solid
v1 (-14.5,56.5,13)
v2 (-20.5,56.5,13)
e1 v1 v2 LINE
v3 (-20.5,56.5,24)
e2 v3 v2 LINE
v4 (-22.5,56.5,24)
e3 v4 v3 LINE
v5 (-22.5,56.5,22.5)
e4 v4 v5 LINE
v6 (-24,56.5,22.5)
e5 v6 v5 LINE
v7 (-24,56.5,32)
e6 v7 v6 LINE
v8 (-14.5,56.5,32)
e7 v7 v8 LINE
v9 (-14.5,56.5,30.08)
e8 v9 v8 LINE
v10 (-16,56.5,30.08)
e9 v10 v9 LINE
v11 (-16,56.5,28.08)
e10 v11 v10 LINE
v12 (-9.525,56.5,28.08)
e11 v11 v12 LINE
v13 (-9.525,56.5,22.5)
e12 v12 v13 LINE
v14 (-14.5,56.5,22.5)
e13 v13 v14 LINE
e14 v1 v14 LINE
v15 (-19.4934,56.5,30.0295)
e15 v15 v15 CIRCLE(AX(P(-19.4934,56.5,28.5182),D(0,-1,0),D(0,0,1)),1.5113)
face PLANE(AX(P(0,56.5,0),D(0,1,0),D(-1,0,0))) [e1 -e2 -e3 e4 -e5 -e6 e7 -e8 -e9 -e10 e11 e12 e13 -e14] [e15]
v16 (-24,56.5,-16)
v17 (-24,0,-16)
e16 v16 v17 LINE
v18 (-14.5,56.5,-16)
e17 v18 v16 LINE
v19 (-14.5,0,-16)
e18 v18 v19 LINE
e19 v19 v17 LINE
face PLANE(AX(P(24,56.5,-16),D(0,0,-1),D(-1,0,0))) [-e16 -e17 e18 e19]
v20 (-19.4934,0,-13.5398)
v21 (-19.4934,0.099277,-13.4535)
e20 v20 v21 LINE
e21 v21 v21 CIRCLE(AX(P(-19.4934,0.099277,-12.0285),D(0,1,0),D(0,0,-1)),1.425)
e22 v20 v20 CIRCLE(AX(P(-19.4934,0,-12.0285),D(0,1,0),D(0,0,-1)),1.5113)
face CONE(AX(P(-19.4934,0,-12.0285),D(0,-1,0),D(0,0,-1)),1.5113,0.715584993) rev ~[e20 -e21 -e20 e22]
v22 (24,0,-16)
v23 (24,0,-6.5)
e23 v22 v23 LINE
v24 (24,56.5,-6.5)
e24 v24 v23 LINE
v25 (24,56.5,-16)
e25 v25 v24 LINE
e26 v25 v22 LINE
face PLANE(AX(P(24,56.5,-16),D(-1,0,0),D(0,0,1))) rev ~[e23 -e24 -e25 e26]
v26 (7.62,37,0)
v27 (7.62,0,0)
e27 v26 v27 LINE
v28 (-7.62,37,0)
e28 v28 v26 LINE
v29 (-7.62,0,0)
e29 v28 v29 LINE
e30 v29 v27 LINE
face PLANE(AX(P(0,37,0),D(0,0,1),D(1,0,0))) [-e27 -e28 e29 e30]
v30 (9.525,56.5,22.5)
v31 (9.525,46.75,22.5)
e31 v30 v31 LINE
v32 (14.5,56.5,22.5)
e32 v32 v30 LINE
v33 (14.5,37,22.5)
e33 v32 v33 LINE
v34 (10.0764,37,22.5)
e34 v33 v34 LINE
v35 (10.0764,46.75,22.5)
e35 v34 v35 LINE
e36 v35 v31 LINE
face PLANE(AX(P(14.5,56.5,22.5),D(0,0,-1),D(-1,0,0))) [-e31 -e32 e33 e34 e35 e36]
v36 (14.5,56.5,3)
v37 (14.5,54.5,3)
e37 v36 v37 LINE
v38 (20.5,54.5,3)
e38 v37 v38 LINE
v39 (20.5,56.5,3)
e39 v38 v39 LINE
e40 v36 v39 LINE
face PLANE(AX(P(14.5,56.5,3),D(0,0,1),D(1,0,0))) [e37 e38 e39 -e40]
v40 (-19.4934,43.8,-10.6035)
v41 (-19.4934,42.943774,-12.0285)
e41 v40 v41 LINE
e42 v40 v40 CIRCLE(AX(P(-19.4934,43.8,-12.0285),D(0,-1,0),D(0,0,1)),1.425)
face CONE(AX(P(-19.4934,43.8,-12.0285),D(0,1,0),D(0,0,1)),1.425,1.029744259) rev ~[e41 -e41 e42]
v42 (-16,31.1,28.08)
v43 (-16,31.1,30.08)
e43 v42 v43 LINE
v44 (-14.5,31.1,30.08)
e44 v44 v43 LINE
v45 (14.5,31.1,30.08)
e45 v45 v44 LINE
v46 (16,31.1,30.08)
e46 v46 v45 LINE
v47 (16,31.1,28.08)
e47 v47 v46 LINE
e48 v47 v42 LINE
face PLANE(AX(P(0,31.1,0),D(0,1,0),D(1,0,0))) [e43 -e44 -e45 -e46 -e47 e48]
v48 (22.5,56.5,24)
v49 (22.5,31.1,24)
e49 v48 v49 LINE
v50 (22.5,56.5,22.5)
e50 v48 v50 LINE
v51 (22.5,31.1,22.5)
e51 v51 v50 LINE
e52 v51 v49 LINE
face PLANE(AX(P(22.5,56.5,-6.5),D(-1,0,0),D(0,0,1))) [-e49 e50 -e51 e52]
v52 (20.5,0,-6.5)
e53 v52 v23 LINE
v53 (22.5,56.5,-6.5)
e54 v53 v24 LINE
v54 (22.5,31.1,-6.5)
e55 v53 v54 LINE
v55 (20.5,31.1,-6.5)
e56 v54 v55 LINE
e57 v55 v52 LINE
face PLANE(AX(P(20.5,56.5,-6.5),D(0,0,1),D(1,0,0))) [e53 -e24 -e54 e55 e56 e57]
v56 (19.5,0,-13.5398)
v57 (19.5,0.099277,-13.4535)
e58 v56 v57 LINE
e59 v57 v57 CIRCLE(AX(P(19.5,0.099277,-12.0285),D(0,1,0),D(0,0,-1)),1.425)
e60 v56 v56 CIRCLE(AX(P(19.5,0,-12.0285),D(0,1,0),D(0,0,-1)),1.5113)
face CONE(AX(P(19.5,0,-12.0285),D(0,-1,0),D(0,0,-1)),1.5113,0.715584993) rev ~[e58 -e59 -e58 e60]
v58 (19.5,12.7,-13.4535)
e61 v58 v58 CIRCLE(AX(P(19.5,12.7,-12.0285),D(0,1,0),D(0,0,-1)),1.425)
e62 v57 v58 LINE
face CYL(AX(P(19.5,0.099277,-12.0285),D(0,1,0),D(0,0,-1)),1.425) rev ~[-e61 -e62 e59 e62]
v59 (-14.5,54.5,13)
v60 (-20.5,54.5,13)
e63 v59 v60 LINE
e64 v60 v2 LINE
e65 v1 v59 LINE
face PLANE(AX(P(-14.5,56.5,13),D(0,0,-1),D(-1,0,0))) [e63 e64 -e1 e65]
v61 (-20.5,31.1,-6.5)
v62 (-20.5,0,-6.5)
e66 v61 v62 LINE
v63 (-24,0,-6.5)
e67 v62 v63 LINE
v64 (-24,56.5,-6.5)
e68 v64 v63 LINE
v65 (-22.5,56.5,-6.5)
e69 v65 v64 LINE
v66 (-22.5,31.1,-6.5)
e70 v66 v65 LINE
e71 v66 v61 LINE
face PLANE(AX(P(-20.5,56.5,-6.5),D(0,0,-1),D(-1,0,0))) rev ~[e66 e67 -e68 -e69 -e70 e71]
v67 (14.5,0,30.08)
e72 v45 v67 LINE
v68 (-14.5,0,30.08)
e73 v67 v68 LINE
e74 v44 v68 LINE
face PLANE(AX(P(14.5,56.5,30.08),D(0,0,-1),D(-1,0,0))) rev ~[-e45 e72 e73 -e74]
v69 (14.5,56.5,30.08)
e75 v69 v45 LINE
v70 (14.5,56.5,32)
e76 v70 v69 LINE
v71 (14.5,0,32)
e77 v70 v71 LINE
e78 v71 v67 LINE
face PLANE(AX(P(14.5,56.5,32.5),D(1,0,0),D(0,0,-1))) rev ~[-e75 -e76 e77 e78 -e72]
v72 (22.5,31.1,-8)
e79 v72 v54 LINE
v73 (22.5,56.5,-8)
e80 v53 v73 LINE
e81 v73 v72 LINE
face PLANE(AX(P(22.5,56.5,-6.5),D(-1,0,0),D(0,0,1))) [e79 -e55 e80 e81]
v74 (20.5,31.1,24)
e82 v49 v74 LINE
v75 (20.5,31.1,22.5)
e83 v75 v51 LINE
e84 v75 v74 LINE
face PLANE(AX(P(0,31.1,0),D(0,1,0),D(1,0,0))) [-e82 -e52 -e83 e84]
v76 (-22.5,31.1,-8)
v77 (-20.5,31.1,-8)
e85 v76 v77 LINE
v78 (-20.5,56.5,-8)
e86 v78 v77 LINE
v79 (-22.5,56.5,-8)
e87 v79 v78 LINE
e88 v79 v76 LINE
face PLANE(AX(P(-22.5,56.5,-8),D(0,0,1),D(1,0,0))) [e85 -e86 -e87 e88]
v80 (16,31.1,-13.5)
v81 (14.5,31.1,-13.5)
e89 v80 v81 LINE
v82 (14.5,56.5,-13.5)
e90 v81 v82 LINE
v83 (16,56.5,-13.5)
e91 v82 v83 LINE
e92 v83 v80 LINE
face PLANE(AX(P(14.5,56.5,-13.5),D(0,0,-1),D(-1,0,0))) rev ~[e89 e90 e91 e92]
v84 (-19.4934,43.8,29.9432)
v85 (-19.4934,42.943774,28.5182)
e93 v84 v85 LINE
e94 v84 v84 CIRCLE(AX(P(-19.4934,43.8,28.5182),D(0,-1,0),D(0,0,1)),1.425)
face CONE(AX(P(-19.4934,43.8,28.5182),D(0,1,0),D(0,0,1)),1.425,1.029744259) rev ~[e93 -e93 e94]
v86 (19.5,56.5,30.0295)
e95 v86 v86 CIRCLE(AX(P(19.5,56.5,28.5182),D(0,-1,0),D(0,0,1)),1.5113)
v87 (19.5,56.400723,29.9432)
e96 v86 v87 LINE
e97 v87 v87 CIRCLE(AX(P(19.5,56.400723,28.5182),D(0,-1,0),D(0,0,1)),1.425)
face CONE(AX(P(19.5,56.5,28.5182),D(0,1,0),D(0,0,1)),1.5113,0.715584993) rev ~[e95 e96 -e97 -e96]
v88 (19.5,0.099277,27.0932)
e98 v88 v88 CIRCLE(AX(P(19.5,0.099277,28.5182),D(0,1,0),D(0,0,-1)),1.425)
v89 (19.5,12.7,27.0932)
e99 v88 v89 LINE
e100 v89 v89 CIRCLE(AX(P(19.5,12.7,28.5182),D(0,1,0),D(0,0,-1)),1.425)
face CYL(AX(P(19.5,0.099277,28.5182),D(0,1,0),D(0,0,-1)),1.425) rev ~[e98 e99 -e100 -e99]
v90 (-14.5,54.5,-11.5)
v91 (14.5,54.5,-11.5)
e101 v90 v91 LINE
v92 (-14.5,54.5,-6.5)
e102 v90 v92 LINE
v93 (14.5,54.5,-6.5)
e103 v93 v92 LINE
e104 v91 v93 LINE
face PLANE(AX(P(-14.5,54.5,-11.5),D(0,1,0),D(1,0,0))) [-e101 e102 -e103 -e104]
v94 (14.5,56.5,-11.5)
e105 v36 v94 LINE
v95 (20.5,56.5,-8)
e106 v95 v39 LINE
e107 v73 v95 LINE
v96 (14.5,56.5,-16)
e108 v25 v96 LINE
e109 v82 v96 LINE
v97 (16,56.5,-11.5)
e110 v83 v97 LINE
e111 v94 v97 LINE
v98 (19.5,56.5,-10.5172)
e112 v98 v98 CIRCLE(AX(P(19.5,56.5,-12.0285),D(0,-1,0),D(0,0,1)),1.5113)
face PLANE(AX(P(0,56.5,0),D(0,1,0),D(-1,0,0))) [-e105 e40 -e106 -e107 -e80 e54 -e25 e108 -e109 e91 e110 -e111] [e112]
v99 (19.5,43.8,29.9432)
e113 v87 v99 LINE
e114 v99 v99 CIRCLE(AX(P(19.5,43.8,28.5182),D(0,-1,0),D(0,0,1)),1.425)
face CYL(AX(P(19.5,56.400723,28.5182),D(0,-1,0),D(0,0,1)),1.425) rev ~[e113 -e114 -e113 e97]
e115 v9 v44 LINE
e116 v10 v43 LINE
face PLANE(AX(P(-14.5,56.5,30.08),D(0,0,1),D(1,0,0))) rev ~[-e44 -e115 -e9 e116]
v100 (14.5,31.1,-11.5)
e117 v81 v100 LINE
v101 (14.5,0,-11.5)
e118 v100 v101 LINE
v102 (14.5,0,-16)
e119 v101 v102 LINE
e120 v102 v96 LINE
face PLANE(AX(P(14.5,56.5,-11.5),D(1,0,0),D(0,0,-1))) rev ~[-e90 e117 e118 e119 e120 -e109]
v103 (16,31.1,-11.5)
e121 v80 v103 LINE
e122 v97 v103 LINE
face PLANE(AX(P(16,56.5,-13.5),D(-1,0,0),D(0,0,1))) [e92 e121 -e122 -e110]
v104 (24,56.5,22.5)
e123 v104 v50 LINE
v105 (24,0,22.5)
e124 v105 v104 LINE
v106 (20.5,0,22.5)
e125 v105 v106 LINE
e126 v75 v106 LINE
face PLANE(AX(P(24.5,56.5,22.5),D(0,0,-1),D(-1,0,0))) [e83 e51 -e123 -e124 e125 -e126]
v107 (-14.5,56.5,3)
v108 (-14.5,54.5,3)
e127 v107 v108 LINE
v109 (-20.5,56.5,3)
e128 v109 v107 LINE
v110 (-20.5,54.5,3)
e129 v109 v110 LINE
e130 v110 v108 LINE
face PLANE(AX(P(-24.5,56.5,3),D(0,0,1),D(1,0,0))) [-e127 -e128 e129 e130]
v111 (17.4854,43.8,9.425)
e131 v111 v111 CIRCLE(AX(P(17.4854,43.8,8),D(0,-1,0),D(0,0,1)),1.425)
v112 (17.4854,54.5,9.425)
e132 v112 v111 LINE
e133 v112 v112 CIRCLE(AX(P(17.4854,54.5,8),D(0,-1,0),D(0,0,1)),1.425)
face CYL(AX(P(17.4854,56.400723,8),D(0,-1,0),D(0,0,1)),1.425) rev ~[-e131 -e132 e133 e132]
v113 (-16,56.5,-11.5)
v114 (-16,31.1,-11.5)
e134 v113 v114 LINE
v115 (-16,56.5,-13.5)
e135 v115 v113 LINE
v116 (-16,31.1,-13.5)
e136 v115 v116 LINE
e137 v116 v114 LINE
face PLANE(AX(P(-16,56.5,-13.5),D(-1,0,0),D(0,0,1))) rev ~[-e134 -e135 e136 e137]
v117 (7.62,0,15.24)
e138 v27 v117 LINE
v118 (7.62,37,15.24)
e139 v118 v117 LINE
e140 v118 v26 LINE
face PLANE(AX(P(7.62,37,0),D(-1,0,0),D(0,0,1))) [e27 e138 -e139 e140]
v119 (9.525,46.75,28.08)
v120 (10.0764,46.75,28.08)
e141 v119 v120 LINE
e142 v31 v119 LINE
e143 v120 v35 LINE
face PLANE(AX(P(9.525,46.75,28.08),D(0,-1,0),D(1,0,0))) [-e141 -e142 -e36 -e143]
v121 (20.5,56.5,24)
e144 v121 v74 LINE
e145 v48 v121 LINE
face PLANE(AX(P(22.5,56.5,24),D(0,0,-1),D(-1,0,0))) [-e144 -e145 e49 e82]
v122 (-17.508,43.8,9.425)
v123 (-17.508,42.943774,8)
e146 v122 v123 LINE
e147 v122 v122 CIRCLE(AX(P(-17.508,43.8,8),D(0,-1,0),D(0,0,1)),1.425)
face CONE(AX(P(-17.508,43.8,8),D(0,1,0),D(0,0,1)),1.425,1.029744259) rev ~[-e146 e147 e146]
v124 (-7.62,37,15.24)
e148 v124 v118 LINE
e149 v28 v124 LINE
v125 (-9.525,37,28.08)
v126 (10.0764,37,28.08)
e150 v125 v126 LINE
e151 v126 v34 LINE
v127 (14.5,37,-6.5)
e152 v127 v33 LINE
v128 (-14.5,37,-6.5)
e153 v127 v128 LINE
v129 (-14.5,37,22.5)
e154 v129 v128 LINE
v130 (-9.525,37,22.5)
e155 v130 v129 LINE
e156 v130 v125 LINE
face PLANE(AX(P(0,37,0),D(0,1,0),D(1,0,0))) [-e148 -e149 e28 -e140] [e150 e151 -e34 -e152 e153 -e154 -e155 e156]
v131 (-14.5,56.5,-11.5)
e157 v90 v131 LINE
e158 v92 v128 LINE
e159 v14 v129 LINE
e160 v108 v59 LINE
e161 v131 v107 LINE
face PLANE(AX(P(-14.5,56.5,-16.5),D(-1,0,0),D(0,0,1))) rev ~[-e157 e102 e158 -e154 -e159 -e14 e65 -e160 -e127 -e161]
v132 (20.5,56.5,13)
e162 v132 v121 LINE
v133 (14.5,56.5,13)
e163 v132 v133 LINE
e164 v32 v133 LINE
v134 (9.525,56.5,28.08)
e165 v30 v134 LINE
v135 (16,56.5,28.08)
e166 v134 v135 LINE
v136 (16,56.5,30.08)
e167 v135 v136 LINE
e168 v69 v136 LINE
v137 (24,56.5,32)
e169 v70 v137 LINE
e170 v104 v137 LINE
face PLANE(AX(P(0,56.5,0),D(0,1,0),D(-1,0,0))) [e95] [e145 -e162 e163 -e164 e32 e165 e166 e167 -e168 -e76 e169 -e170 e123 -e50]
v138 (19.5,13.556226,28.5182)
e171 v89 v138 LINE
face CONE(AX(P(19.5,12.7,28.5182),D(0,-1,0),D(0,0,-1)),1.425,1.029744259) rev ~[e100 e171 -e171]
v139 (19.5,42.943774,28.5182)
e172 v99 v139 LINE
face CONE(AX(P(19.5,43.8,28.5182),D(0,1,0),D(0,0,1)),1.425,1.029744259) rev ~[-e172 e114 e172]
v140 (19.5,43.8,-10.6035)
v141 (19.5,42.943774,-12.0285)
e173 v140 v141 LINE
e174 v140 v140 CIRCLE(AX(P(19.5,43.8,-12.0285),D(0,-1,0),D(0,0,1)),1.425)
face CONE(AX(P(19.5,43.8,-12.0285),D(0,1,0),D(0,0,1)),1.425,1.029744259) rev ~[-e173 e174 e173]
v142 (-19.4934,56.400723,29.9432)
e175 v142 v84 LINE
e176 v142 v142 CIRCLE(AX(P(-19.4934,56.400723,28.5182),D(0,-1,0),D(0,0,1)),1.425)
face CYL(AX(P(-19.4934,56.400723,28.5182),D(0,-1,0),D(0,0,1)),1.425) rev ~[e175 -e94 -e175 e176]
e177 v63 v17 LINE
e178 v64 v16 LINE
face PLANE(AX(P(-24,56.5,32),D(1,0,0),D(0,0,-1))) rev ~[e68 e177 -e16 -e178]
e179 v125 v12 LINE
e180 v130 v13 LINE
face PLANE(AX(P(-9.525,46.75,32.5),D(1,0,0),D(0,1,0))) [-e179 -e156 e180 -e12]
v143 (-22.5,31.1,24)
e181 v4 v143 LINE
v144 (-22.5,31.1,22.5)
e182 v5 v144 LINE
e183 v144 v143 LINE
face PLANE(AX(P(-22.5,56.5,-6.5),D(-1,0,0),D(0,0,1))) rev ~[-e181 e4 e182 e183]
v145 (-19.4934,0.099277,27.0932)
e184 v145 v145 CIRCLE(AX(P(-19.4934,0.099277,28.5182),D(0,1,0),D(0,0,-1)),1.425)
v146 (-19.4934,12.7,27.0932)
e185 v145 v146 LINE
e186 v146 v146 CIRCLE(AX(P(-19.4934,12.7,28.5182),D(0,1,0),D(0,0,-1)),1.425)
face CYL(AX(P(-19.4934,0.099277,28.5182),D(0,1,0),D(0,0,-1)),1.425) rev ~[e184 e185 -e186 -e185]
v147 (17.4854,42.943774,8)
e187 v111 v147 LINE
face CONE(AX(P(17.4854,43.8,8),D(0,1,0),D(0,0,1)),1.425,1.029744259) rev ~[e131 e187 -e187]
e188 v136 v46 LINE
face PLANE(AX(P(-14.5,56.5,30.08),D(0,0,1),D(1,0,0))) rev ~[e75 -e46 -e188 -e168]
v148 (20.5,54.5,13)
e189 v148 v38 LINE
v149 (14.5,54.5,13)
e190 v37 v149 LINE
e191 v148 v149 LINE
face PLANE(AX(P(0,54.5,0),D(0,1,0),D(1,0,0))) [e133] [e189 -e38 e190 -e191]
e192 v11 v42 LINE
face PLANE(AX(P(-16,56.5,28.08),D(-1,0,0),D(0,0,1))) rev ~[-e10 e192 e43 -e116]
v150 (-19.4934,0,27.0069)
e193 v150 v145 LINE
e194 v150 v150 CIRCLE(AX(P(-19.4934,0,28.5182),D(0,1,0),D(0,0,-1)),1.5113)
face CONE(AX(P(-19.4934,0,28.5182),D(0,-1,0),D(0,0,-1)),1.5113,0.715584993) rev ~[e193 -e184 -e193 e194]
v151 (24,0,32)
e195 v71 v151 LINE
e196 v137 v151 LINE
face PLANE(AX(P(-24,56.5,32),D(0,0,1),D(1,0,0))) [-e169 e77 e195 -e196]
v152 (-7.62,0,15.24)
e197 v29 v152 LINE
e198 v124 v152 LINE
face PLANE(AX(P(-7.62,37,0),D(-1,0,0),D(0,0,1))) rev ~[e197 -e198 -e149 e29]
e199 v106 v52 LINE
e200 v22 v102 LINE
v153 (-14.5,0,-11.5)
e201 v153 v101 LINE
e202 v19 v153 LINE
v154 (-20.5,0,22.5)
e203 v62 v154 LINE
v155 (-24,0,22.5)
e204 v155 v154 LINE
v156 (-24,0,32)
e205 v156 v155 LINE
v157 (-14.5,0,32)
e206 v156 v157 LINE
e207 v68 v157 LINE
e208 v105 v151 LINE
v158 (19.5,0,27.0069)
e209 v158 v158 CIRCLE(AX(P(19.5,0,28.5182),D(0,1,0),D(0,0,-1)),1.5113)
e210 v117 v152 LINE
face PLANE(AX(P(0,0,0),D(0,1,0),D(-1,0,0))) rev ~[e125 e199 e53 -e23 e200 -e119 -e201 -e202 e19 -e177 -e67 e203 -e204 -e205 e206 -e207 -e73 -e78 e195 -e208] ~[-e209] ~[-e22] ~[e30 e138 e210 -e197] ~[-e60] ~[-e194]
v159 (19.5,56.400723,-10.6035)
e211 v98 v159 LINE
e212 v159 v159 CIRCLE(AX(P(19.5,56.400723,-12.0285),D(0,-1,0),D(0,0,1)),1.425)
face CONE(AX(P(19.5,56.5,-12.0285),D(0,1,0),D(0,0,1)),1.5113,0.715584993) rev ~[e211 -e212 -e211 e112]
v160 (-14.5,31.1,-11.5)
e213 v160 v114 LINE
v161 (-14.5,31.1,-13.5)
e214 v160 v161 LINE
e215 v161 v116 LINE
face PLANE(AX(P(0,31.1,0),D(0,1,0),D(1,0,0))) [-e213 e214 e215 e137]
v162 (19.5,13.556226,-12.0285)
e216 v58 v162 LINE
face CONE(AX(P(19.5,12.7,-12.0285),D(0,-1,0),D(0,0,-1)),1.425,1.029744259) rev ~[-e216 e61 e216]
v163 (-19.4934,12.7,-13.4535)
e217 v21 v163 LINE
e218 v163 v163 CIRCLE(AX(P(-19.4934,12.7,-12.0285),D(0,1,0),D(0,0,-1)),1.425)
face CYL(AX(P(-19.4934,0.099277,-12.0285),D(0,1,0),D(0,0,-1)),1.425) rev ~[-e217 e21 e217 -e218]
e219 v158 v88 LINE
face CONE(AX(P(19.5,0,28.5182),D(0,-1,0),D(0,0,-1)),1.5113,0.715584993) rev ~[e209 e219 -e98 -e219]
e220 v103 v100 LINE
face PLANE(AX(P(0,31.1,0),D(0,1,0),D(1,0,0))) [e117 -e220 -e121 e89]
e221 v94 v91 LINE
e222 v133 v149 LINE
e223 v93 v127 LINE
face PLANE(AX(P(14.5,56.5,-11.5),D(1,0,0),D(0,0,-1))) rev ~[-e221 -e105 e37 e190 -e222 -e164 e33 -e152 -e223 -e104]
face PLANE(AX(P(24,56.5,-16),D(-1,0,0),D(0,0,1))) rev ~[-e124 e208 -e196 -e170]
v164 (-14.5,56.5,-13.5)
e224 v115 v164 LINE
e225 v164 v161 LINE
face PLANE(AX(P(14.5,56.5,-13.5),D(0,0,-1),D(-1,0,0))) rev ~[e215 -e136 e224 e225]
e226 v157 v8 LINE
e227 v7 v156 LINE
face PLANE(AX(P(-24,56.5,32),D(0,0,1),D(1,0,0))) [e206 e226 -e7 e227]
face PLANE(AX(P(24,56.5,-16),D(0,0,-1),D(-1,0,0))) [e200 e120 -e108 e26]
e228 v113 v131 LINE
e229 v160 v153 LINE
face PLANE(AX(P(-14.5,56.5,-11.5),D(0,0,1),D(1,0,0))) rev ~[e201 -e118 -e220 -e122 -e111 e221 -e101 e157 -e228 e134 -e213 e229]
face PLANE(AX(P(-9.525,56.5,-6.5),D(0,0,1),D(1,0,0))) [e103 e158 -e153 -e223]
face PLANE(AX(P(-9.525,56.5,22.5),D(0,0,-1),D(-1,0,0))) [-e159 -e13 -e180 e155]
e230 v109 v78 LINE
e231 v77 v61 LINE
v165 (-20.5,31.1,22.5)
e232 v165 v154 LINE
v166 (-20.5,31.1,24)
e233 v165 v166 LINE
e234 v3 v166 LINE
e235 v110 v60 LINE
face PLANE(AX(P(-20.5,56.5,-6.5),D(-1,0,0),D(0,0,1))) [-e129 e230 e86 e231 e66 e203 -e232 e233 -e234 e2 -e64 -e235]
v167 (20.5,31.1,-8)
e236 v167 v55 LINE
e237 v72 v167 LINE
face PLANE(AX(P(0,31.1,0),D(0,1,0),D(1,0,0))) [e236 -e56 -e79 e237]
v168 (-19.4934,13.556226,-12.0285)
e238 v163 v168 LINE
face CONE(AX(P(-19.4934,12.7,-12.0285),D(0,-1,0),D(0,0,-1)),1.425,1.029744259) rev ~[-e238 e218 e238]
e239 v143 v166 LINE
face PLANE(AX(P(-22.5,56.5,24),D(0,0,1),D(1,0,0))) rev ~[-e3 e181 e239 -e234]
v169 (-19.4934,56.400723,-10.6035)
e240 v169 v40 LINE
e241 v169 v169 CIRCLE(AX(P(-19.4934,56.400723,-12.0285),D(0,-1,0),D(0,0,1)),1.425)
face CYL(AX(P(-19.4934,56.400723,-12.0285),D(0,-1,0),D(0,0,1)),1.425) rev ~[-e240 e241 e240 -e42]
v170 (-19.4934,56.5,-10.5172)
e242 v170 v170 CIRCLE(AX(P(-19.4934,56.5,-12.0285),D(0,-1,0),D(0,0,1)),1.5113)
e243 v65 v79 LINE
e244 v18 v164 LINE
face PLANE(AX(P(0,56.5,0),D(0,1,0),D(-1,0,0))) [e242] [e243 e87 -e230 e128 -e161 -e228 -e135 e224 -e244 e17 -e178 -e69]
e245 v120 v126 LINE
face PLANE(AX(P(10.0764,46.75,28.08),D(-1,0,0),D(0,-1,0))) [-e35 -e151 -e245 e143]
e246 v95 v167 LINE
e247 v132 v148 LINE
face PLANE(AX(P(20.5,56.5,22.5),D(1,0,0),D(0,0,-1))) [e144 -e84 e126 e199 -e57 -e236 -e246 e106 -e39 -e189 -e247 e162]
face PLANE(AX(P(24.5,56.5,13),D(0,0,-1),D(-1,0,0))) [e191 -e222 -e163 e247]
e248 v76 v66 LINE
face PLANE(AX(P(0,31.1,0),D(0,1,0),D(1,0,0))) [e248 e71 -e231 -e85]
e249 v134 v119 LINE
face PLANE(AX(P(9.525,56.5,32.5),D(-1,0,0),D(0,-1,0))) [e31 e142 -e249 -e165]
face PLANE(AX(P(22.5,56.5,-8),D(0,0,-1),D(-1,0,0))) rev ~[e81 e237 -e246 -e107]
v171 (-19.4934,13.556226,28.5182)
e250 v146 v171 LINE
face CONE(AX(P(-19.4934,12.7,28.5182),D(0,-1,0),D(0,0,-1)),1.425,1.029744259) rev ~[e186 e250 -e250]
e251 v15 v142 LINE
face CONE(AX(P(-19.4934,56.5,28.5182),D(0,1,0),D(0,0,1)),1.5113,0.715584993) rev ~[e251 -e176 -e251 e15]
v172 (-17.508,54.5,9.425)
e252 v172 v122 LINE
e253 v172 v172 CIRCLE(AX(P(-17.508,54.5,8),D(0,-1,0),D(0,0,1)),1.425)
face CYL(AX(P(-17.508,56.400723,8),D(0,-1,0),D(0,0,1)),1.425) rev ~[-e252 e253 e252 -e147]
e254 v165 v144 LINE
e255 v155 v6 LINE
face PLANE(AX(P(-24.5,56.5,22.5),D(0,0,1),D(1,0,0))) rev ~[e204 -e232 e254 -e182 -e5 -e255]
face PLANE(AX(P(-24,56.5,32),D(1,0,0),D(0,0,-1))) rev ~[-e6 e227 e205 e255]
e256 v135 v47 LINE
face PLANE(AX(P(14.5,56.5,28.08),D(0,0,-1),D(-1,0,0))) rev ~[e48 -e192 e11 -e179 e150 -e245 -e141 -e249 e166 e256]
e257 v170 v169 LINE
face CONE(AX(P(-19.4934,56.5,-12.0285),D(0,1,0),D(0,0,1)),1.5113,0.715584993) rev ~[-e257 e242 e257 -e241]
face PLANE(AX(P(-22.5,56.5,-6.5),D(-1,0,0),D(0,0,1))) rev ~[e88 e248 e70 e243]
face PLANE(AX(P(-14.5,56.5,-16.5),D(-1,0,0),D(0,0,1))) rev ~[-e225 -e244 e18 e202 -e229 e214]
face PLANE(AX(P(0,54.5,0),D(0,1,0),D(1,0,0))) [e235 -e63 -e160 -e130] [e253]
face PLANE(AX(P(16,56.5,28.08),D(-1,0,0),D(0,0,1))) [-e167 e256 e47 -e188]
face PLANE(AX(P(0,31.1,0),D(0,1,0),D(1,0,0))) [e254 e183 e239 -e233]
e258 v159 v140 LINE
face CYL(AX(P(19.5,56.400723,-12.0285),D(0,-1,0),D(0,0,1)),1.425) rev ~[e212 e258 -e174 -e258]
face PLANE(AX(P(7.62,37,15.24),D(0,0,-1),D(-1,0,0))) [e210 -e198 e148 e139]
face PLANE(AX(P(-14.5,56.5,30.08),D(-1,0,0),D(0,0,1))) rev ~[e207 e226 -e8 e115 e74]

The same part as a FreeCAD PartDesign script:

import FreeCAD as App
import Part
import Sketcher
Q = App.Units.Quantity


def add_polygon(sketch, points):
    """Adds a closed chain of lines whose ends are joined by coincident constraints."""
    first, n = sketch.GeometryCount, len(points)
    for a, b in zip(points, points[1:] + points[:1]):
        sketch.addGeometry(Part.LineSegment(App.Vector(*a, 0), App.Vector(*b, 0)), False)
    for i in range(n):
        sketch.addConstraint(Sketcher.Constraint("Coincident", first + i, 2, first + (i + 1) % n, 1))

doc = App.newDocument("Part")
body = doc.addObject("PartDesign::Body", "Body")

# Sketch on XZ plane
sketch1 = body.newObject("Sketcher::SketchObject", "Sketch")
sketch1.AttachmentSupport = (doc.getObject("XZ_Plane"), [""])
sketch1.MapMode = "FlatFace"
add_polygon(sketch1, [(-24, 32), (24, 32), (24, -16), (-24, -16)])  # lines 0-3
sketch1.addConstraint([
    Sketcher.Constraint("Horizontal", 0),
    Sketcher.Constraint("Vertical", 1),
    Sketcher.Constraint("Horizontal", 2),
    Sketcher.Constraint("Vertical", 3),
    Sketcher.Constraint("Equal", 2, 1),
    Sketcher.Constraint("DistanceX", 0, 1, 0, 2, Q("49 mm")),
    Sketcher.Constraint("DistanceX", -1, 1, 0, 2, Q("24.5 mm")),
    Sketcher.Constraint("DistanceY", -1, 1, 0, 2, Q("32.5 mm")),
])
pad1 = body.newObject("PartDesign::Pad", "Pad")
pad1.Profile = sketch1
pad1.Length = 56.5
pad1.Reversed = True

# Sketch on XZ plane
sketch2 = body.newObject("Sketcher::SketchObject", "Sketch001")
sketch2.AttachmentSupport = (doc.getObject("XZ_Plane"), [""])
sketch2.MapMode = "FlatFace"
sketch2.AttachmentOffset = App.Placement(App.Vector(0, 0, -56.5), App.Rotation())
add_polygon(sketch2, [(-14.5, -6.5), (-14.5, 22.5), (-9.5, 22.5), (-9.5, 27.6), (9.5, 27.6), (9.5, 22.5), (14.5, 22.5), (14.5, -6.5)])  # lines 0-7
sketch2.addConstraint([
    Sketcher.Constraint("Vertical", 0),
    Sketcher.Constraint("Horizontal", 1),
    Sketcher.Constraint("Vertical", 2),
    Sketcher.Constraint("Horizontal", 3),
    Sketcher.Constraint("Vertical", 4),
    Sketcher.Constraint("Horizontal", 5),
    Sketcher.Constraint("Vertical", 6),
    Sketcher.Constraint("Horizontal", 7),
    Sketcher.Constraint("Symmetric", 1, 2, 4, 2, -2),
    Sketcher.Constraint("Equal", 1, 5),
    Sketcher.Constraint("Equal", 7, 0),
    Sketcher.Constraint("DistanceX", 7, 2, 7, 1, Q("29 mm")),
    Sketcher.Constraint("DistanceY", 2, 1, 2, 2, Q("5.08 mm")),
    Sketcher.Constraint("DistanceX", 1, 2, -1, 1, Q("9.525 mm")),
    Sketcher.Constraint("DistanceY", -1, 1, 0, 2, Q("22.5 mm")),
])
pocket1 = body.newObject("PartDesign::Pocket", "Pocket")
pocket1.Profile = sketch2
pocket1.Length = 19.5
pocket1.Reversed = True

# Sketch on XZ plane
sketch3 = body.newObject("Sketcher::SketchObject", "Sketch002")
sketch3.AttachmentSupport = (doc.getObject("XZ_Plane"), [""])
sketch3.MapMode = "FlatFace"
sketch3.AttachmentOffset = App.Placement(App.Vector(0, 0, -56.5), App.Rotation())
sketch3.addGeometry([
    Part.Circle(App.Vector(-17.5, 8, 0), App.Vector(0, 0, 1), 1.4),  # 0
    Part.Circle(App.Vector(17.5, 8, 0), App.Vector(0, 0, 1), 1.4),  # 1
    Part.Circle(App.Vector(-19.5, 28.5, 0), App.Vector(0, 0, 1), 1.4),  # 2
    Part.Circle(App.Vector(19.5, 28.5, 0), App.Vector(0, 0, 1), 1.4),  # 3
    Part.Circle(App.Vector(-19.5, -12, 0), App.Vector(0, 0, 1), 1.4),  # 4
    Part.Circle(App.Vector(19.5, -12, 0), App.Vector(0, 0, 1), 1.4),  # 5
], False)
sketch3.addConstraint([
    Sketcher.Constraint("Equal", 0, 1),
    Sketcher.Constraint("Equal", 1, 2),
    Sketcher.Constraint("Equal", 2, 3),
    Sketcher.Constraint("Equal", 3, 4),
    Sketcher.Constraint("Equal", 4, 5),
    Sketcher.Constraint("Horizontal", 0, 3, 1, 3),
    Sketcher.Constraint("Horizontal", 2, 3, 3, 3),
    Sketcher.Constraint("Horizontal", 4, 3, 5, 3),
    Sketcher.Constraint("Vertical", 2, 3, 4, 3),
    Sketcher.Constraint("Vertical", 3, 3, 5, 3),
    Sketcher.Constraint("Diameter", 0, Q("2.85 mm")),
    Sketcher.Constraint("DistanceY", -1, 1, 0, 3, Q("8 mm")),
    Sketcher.Constraint("DistanceX", -1, 1, 3, 3, Q("19.5 mm")),
    Sketcher.Constraint("DistanceX", 0, 3, -1, 1, Q("17.508 mm")),
    Sketcher.Constraint("DistanceX", -1, 1, 1, 3, Q("17.4854 mm")),
    Sketcher.Constraint("DistanceX", 2, 3, -1, 1, Q("19.4934 mm")),
    Sketcher.Constraint("DistanceY", -1, 1, 2, 3, Q("28.5182 mm")),
    Sketcher.Constraint("DistanceY", 4, 3, -1, 1, Q("12.0285 mm")),
])
doc.recompute()
hole = body.newObject("PartDesign::Hole", "Hole")
hole.Profile = sketch3
hole.ThreadType = "None"
hole.Diameter = 2.85
hole.DepthType = "Dimension"
hole.Depth = 12.7
hole.DrillPoint = "Angled"
hole.DrillPointAngle = 118
hole.HoleCutType = "Countersink"
hole.HoleCutDiameter = 3.0226
hole.HoleCutCountersinkAngle = 82
hole.Reversed = True

# Sketch on XZ plane
sketch4 = body.newObject("Sketcher::SketchObject", "Sketch003")
sketch4.AttachmentSupport = (doc.getObject("XZ_Plane"), [""])
sketch4.MapMode = "FlatFace"
sketch4.addGeometry([
    Part.Circle(App.Vector(19.5, -12, 0), App.Vector(0, 0, 1), 1.4),
    Part.Circle(App.Vector(-19.5, -12, 0), App.Vector(0, 0, 1), 1.4),
    Part.Circle(App.Vector(-19.5, 28.5, 0), App.Vector(0, 0, 1), 1.4),
    Part.Circle(App.Vector(19.5, 28.5, 0), App.Vector(0, 0, 1), 1.4),
], False)
sketch4.addConstraint([
    Sketcher.Constraint("Equal", 0, 1),
    Sketcher.Constraint("Equal", 1, 2),
    Sketcher.Constraint("Equal", 2, 3),
    Sketcher.Constraint("Horizontal", 0, 3, 1, 3),
    Sketcher.Constraint("Horizontal", 2, 3, 3, 3),
    Sketcher.Constraint("Vertical", 1, 3, 2, 3),
    Sketcher.Constraint("Vertical", 0, 3, 3, 3),
    Sketcher.Constraint("Diameter", 0, Q("2.85 mm")),
    Sketcher.Constraint("DistanceX", -1, 1, 0, 3, Q("19.5 mm")),
    Sketcher.Constraint("DistanceY", 0, 3, -1, 1, Q("12.0285 mm")),
    Sketcher.Constraint("DistanceX", 1, 3, -1, 1, Q("19.4934 mm")),
    Sketcher.Constraint("DistanceY", -1, 1, 2, 3, Q("28.5182 mm")),
])
doc.recompute()
hole2 = body.newObject("PartDesign::Hole", "Hole001")
hole2.Profile = sketch4
hole2.ThreadType = "None"
hole2.Diameter = 2.85
hole2.DepthType = "Dimension"
hole2.Depth = 12.7
hole2.DrillPoint = "Angled"
hole2.DrillPointAngle = 118
hole2.HoleCutType = "Countersink"
hole2.HoleCutDiameter = 3.0226
hole2.HoleCutCountersinkAngle = 82

# Sketch on XY plane
sketch5 = body.newObject("Sketcher::SketchObject", "Sketch004")
sketch5.AttachmentSupport = (doc.getObject("XY_Plane"), [""])
sketch5.MapMode = "FlatFace"
sketch5.AttachmentOffset = App.Placement(App.Vector(0, 0, 32.5), App.Rotation())
add_polygon(sketch5, [(10, 47), (10, 56), (-10, 56), (-10, 47)])  # lines 0-3
sketch5.addConstraint([
    Sketcher.Constraint("Vertical", 0),
    Sketcher.Constraint("Horizontal", 1),
    Sketcher.Constraint("Vertical", 2),
    Sketcher.Constraint("Horizontal", 3),
    Sketcher.Constraint("DistanceX", 1, 2, 1, 1, Q("19.05 mm")),
    Sketcher.Constraint("DistanceY", 0, 1, 0, 2, Q("9.75 mm")),
    Sketcher.Constraint("DistanceY", -1, 1, 0, 2, Q("56.5 mm")),
    Sketcher.Constraint("DistanceX", -1, 1, 0, 2, Q("9.525 mm")),
])
pocket2 = body.newObject("PartDesign::Pocket", "Pocket001")
pocket2.Profile = sketch5
pocket2.Length = 25.4

# Sketch on XZ plane
sketch6 = body.newObject("Sketcher::SketchObject", "Sketch005")
sketch6.AttachmentSupport = (doc.getObject("XZ_Plane"), [""])
sketch6.MapMode = "FlatFace"
sketch6.AttachmentOffset = App.Placement(App.Vector(0, 0, -56.5), App.Rotation())
add_polygon(sketch6, [(-14, 3), (-24, 3), (-24, 13), (-14, 13)])  # lines 0-3
add_polygon(sketch6, [(24, 3), (14, 3), (14, 13), (24, 13)])  # lines 4-7
sketch6.addConstraint([
    Sketcher.Constraint("Horizontal", 0),
    Sketcher.Constraint("Vertical", 1),
    Sketcher.Constraint("Horizontal", 2),
    Sketcher.Constraint("Vertical", 3),
    Sketcher.Constraint("Horizontal", 4),
    Sketcher.Constraint("Vertical", 5),
    Sketcher.Constraint("Horizontal", 6),
    Sketcher.Constraint("Vertical", 7),
    Sketcher.Constraint("Symmetric", 3, 2, 4, 2, -2),
    Sketcher.Constraint("Symmetric", 1, 2, 6, 2, -2),
    Sketcher.Constraint("Equal", 6, 1),
    Sketcher.Constraint("DistanceX", 0, 2, 0, 1, Q("10 mm")),
    Sketcher.Constraint("DistanceY", -1, 1, 0, 2, Q("3 mm")),
    Sketcher.Constraint("DistanceX", 3, 2, 4, 2, Q("29 mm")),
])
pocket3 = body.newObject("PartDesign::Pocket", "Pocket002")
pocket3.Profile = sketch6
pocket3.Length = 2
pocket3.Reversed = True

# Sketch on XZ plane
sketch7 = body.newObject("Sketcher::SketchObject", "Sketch006")
sketch7.AttachmentSupport = (doc.getObject("XZ_Plane"), [""])
sketch7.MapMode = "FlatFace"
sketch7.AttachmentOffset = App.Placement(App.Vector(0, 0, -56.5), App.Rotation())
add_polygon(sketch7, [(-14.5, -16.5), (-14.5, -11.5), (14.5, -11.5), (14.5, -16.5)])  # lines 0-3
add_polygon(sketch7, [(-20.5, 22.5), (-20.5, -6.5), (-24.5, -6.5), (-24.5, 22.5)])  # lines 4-7
add_polygon(sketch7, [(24.5, 22.5), (24.5, -6.5), (20.5, -6.5), (20.5, 22.5)])  # lines 8-11
add_polygon(sketch7, [(-14.5, 30.1), (-14.5, 32.5), (14.5, 32.5), (14.5, 30.1)])  # lines 12-15
sketch7.addConstraint([
    Sketcher.Constraint("Vertical", 0),
    Sketcher.Constraint("Horizontal", 1),
    Sketcher.Constraint("Vertical", 2),
    Sketcher.Constraint("Horizontal", 3),
    Sketcher.Constraint("Vertical", 4),
    Sketcher.Constraint("Horizontal", 5),
    Sketcher.Constraint("Vertical", 6),
    Sketcher.Constraint("Horizontal", 7),
    Sketcher.Constraint("Vertical", 8),
    Sketcher.Constraint("Horizontal", 9),
    Sketcher.Constraint("Vertical", 10),
    Sketcher.Constraint("Horizontal", 11),
    Sketcher.Constraint("Vertical", 12),
    Sketcher.Constraint("Horizontal", 13),
    Sketcher.Constraint("Vertical", 14),
    Sketcher.Constraint("Horizontal", 15),
    Sketcher.Constraint("Symmetric", 5, 2, 8, 2, -2),
    Sketcher.Constraint("Symmetric", 7, 2, 10, 2, -2),
    Sketcher.Constraint("Vertical", 3, 2, 12, 2),
    Sketcher.Constraint("Vertical", 2, 2, 13, 2),
    Sketcher.Constraint("Equal", 15, 4),
    Sketcher.Constraint("DistanceX", 5, 2, 5, 1, Q("4 mm")),
    Sketcher.Constraint("DistanceY", 0, 1, 0, 2, Q("5 mm")),
    Sketcher.Constraint("DistanceY", 0, 2, 4, 2, Q("5 mm")),
    Sketcher.Constraint("DistanceX", 1, 1, 1, 2, Q("29 mm")),
    Sketcher.Constraint("DistanceX", 4, 2, 0, 2, Q("6 mm")),
    Sketcher.Constraint("DistanceX", 1, 2, 8, 2, Q("10 mm")),
    Sketcher.Constraint("DistanceY", 7, 2, 12, 2, Q("10 mm")),
    Sketcher.Constraint("DistanceY", 12, 1, 12, 2, Q("2.42 mm")),
    Sketcher.Constraint("DistanceY", 0, 2, -1, 1, Q("11.5 mm")),
])
pocket4 = body.newObject("PartDesign::Pocket", "Pocket003")
pocket4.Profile = sketch7
pocket4.Type = "ThroughAll"
pocket4.Reversed = True

# Sketch on XY plane
sketch8 = body.newObject("Sketcher::SketchObject", "Sketch007")
sketch8.AttachmentSupport = (doc.getObject("XY_Plane"), [""])
sketch8.MapMode = "FlatFace"
sketch8.AttachmentOffset = App.Placement(App.Vector(0, 0, -11.5), App.Rotation())
add_polygon(sketch8, [(-14.5, 54.5), (-14.5, 56.5), (14.5, 56.5), (14.5, 54.5)])  # lines 0-3
sketch8.addConstraint([
    Sketcher.Constraint("Vertical", 0),
    Sketcher.Constraint("Horizontal", 1),
    Sketcher.Constraint("Vertical", 2),
    Sketcher.Constraint("Horizontal", 3),
    Sketcher.Constraint("DistanceY", 0, 1, 0, 2, Q("2 mm")),
    Sketcher.Constraint("DistanceX", 1, 1, 1, 2, Q("29 mm")),
    Sketcher.Constraint("DistanceX", 0, 2, -1, 1, Q("14.5 mm")),
    Sketcher.Constraint("DistanceY", -1, 1, 0, 2, Q("56.5 mm")),
])
pocket5 = body.newObject("PartDesign::Pocket", "Pocket004")
pocket5.Profile = sketch8
pocket5.Length = 25.4
pocket5.Reversed = True

# Sketch on XZ plane
sketch9 = body.newObject("Sketcher::SketchObject", "Sketch008")
sketch9.AttachmentSupport = (doc.getObject("XZ_Plane"), [""])
sketch9.MapMode = "FlatFace"
sketch9.AttachmentOffset = App.Placement(App.Vector(0, 0, -37), App.Rotation())
add_polygon(sketch9, [(8, 0), (-8, 0), (-8, 15), (8, 15)])  # lines 0-3
sketch9.addConstraint([
    Sketcher.Constraint("Horizontal", 0),
    Sketcher.Constraint("Vertical", 1),
    Sketcher.Constraint("Horizontal", 2),
    Sketcher.Constraint("Vertical", 3),
    Sketcher.Constraint("Symmetric", 0, 2, 3, 2, -1, 1),
    Sketcher.Constraint("Equal", 2, 1),
    Sketcher.Constraint("DistanceX", 0, 2, 0, 1, Q("15.24 mm")),
])
pocket6 = body.newObject("PartDesign::Pocket", "Pocket005")
pocket6.Profile = sketch9
pocket6.Type = "ThroughAll"
pocket6.Reversed = True

# Sketch on XZ plane
sketch10 = body.newObject("Sketcher::SketchObject", "Sketch009")
sketch10.AttachmentSupport = (doc.getObject("XZ_Plane"), [""])
sketch10.MapMode = "FlatFace"
sketch10.AttachmentOffset = App.Placement(App.Vector(0, 0, -56.5), App.Rotation())
add_polygon(sketch10, [(-24, -16), (-24, 32), (24, 32), (24, -16)])  # lines 0-3
add_polygon(sketch10, [(-24, -16), (24, -16), (24, 32), (-24, 32)])  # lines 4-7
sketch10.addConstraint([
    Sketcher.Constraint("Vertical", 0),
    Sketcher.Constraint("Horizontal", 1),
    Sketcher.Constraint("Vertical", 2),
    Sketcher.Constraint("Horizontal", 3),
    Sketcher.Constraint("Horizontal", 4),
    Sketcher.Constraint("Vertical", 5),
    Sketcher.Constraint("Horizontal", 6),
    Sketcher.Constraint("Vertical", 7),
    Sketcher.Constraint("Equal", 3, 0),
    Sketcher.Constraint("Equal", 6, 5),
    Sketcher.Constraint("DistanceX", 4, 2, 2, 2, Q("0.5 mm")),
    Sketcher.Constraint("DistanceY", 2, 2, 4, 2, Q("0.5 mm")),
    Sketcher.Constraint("DistanceY", 5, 2, 1, 2, Q("0.5 mm")),
    Sketcher.Constraint("DistanceX", 1, 1, 1, 2, Q("49 mm")),
    Sketcher.Constraint("DistanceX", -1, 1, 4, 2, Q("24 mm")),
    Sketcher.Constraint("DistanceY", 4, 2, -1, 1, Q("16 mm")),
])
pocket7 = body.newObject("PartDesign::Pocket", "Pocket006")
pocket7.Profile = sketch10
pocket7.Type = "ThroughAll"
pocket7.Reversed = True

# Sketch on XZ plane
sketch11 = body.newObject("Sketcher::SketchObject", "Sketch010")
sketch11.AttachmentSupport = (doc.getObject("XZ_Plane"), [""])
sketch11.MapMode = "FlatFace"
sketch11.AttachmentOffset = App.Placement(App.Vector(0, 0, -56.5), App.Rotation())
add_polygon(sketch11, [(-22.5, 24), (-20.5, 24), (-20.5, -8), (-22.5, -8)])  # lines 0-3
add_polygon(sketch11, [(-16, -13.5), (-16, -11.5), (16, -11.5), (16, -13.5)])  # lines 4-7
add_polygon(sketch11, [(20.5, 24), (22.5, 24), (22.5, -8), (20.5, -8)])  # lines 8-11
add_polygon(sketch11, [(-16, 28.1), (-16, 30.1), (16, 30.1), (16, 28.1)])  # lines 12-15
sketch11.addConstraint([
    Sketcher.Constraint("Horizontal", 0),
    Sketcher.Constraint("Vertical", 1),
    Sketcher.Constraint("Horizontal", 2),
    Sketcher.Constraint("Vertical", 3),
    Sketcher.Constraint("Vertical", 4),
    Sketcher.Constraint("Horizontal", 5),
    Sketcher.Constraint("Vertical", 6),
    Sketcher.Constraint("Horizontal", 7),
    Sketcher.Constraint("Horizontal", 8),
    Sketcher.Constraint("Vertical", 9),
    Sketcher.Constraint("Horizontal", 10),
    Sketcher.Constraint("Vertical", 11),
    Sketcher.Constraint("Vertical", 12),
    Sketcher.Constraint("Horizontal", 13),
    Sketcher.Constraint("Vertical", 14),
    Sketcher.Constraint("Horizontal", 15),
    Sketcher.Constraint("Symmetric", 3, 2, 8, 2, -2),
    Sketcher.Constraint("Symmetric", 1, 2, 10, 2, -2),
    Sketcher.Constraint("Vertical", 7, 2, 12, 2),
    Sketcher.Constraint("Vertical", 6, 2, 13, 2),
    Sketcher.Constraint("Equal", 15, 1),
    Sketcher.Constraint("Equal", 10, 4),
    Sketcher.Constraint("Equal", 6, 12),
    Sketcher.Constraint("DistanceX", 0, 1, 0, 2, Q("2 mm")),
    Sketcher.Constraint("DistanceX", 5, 1, 5, 2, Q("32 mm")),
    Sketcher.Constraint("DistanceY", -1, 1, 0, 2, Q("24 mm")),
    Sketcher.Constraint("DistanceX", 4, 2, -1, 1, Q("16 mm")),
    Sketcher.Constraint("DistanceX", 0, 2, 8, 2, Q("43 mm")),
    Sketcher.Constraint("DistanceY", 4, 2, -1, 1, Q("11.5 mm")),
    Sketcher.Constraint("DistanceY", -1, 1, 12, 2, Q("30.08 mm")),
])
pocket8 = body.newObject("PartDesign::Pocket", "Pocket007")
pocket8.Profile = sketch11
pocket8.Length = 25.4
pocket8.Reversed = True

# Sketch on XY plane
sketch12 = body.newObject("Sketcher::SketchObject", "Sketch011")
sketch12.AttachmentSupport = (doc.getObject("XY_Plane"), [""])
sketch12.MapMode = "FlatFace"
sketch12.AttachmentOffset = App.Placement(App.Vector(0, 0, 28.08), App.Rotation())
add_polygon(sketch12, [(10, 47), (-10, 47), (-10, 37), (10, 37)])  # lines 0-3
sketch12.addConstraint([
    Sketcher.Constraint("Horizontal", 0),
    Sketcher.Constraint("Vertical", 1),
    Sketcher.Constraint("Horizontal", 2),
    Sketcher.Constraint("Vertical", 3),
    Sketcher.Constraint("DistanceY", -1, 1, 1, 2, Q("37 mm")),
    Sketcher.Constraint("DistanceY", 1, 2, 1, 1, Q("9.75 mm")),
    Sketcher.Constraint("DistanceX", 0, 2, 0, 1, Q("19.6014 mm")),
    Sketcher.Constraint("DistanceX", 0, 2, -1, 1, Q("9.525 mm")),
])
pocket9 = body.newObject("PartDesign::Pocket", "Pocket008")
pocket9.Profile = sketch12
pocket9.Length = 25.4

doc.recompute()
